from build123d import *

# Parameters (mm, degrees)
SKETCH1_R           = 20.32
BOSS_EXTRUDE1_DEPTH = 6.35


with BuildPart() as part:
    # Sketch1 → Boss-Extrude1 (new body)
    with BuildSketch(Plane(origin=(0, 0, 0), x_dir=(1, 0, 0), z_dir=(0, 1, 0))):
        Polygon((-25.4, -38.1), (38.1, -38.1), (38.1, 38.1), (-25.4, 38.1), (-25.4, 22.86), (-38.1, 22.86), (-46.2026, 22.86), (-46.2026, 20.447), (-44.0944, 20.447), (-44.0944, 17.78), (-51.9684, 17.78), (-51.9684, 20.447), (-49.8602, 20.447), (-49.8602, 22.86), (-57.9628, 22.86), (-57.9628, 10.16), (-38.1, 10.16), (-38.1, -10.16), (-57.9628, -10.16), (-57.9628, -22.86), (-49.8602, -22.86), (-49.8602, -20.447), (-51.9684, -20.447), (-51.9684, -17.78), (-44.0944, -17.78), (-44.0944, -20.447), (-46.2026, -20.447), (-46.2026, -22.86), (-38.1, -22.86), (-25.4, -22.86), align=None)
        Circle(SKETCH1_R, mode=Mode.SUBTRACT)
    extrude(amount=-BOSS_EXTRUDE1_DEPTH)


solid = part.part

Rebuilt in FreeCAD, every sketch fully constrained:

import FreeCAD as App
import Part
import Sketcher

V = App.Vector
Q = App.Units.Quantity

doc = App.newDocument("Part")
body = doc.addObject("PartDesign::Body", "Body")

sketch1 = body.newObject("Sketcher::SketchObject", "Sketch")
sketch1.AttachmentSupport = (doc.getObject("XZ_Plane"), [""])
sketch1.MapMode = "FlatFace"
sketch1.addGeometry([
    Part.LineSegment(V(-25.4, 38.1, 0), V(38.1, 38.1, 0)),
    Part.LineSegment(V(38.1, 38.1, 0), V(38.1, -38.1, 0)),
    Part.LineSegment(V(38.1, -38.1, 0), V(-25.4, -38.1, 0)),
    Part.LineSegment(V(-25.4, -38.1, 0), V(-25.4, -22.9, 0)),
    Part.LineSegment(V(-25.4, -22.9, 0), V(-46.2, -22.9, 0)),
    Part.LineSegment(V(-46.2, -22.9, 0), V(-46.2, -20.4, 0)),
    Part.LineSegment(V(-46.2, -20.4, 0), V(-44.1, -20.4, 0)),
    Part.LineSegment(V(-44.1, -20.4, 0), V(-44.1, -17.8, 0)),
    Part.LineSegment(V(-44.1, -17.8, 0), V(-52, -17.8, 0)),
    Part.LineSegment(V(-52, -17.8, 0), V(-52, -20.4, 0)),
    Part.LineSegment(V(-52, -20.4, 0), V(-49.9, -20.4, 0)),
    Part.LineSegment(V(-49.9, -20.4, 0), V(-49.9, -22.9, 0)),
    Part.LineSegment(V(-49.9, -22.9, 0), V(-58, -22.9, 0)),
    Part.LineSegment(V(-58, -22.9, 0), V(-58, -10.2, 0)),
    Part.LineSegment(V(-58, -10.2, 0), V(-38.1, -10.2, 0)),
    Part.LineSegment(V(-38.1, -10.2, 0), V(-38.1, 10.2, 0)),
    Part.LineSegment(V(-38.1, 10.2, 0), V(-58, 10.2, 0)),
    Part.LineSegment(V(-58, 10.2, 0), V(-58, 22.9, 0)),
    Part.LineSegment(V(-58, 22.9, 0), V(-49.9, 22.9, 0)),
    Part.LineSegment(V(-49.9, 22.9, 0), V(-49.9, 20.4, 0)),
    Part.LineSegment(V(-49.9, 20.4, 0), V(-52, 20.4, 0)),
    Part.LineSegment(V(-52, 20.4, 0), V(-52, 17.8, 0)),
    Part.LineSegment(V(-52, 17.8, 0), V(-44.1, 17.8, 0)),
    Part.LineSegment(V(-44.1, 17.8, 0), V(-44.1, 20.4, 0)),
    Part.LineSegment(V(-44.1, 20.4, 0), V(-46.2, 20.4, 0)),
    Part.LineSegment(V(-46.2, 20.4, 0), V(-46.2, 22.9, 0)),
    Part.LineSegment(V(-46.2, 22.9, 0), V(-25.4, 22.9, 0)),
    Part.LineSegment(V(-25.4, 22.9, 0), V(-25.4, 38.1, 0)),
    Part.Circle(V(0, 0, 0), V(0, 0, 1), 20.3),
], False)
sketch1.addConstraint([
    Sketcher.Constraint("Coincident", 0, 2, 1, 1),
    Sketcher.Constraint("Coincident", 1, 2, 2, 1),
    Sketcher.Constraint("Coincident", 2, 2, 3, 1),
    Sketcher.Constraint("Coincident", 3, 2, 4, 1),
    Sketcher.Constraint("Coincident", 4, 2, 5, 1),
    Sketcher.Constraint("Coincident", 5, 2, 6, 1),
    Sketcher.Constraint("Coincident", 6, 2, 7, 1),
    Sketcher.Constraint("Coincident", 7, 2, 8, 1),
    Sketcher.Constraint("Coincident", 8, 2, 9, 1),
    Sketcher.Constraint("Coincident", 9, 2, 10, 1),
    Sketcher.Constraint("Coincident", 10, 2, 11, 1),
    Sketcher.Constraint("Coincident", 11, 2, 12, 1),
    Sketcher.Constraint("Coincident", 12, 2, 13, 1),
    Sketcher.Constraint("Coincident", 13, 2, 14, 1),
    Sketcher.Constraint("Coincident", 14, 2, 15, 1),
    Sketcher.Constraint("Coincident", 15, 2, 16, 1),
    Sketcher.Constraint("Coincident", 16, 2, 17, 1),
    Sketcher.Constraint("Coincident", 17, 2, 18, 1),
    Sketcher.Constraint("Coincident", 18, 2, 19, 1),
    Sketcher.Constraint("Coincident", 19, 2, 20, 1),
    Sketcher.Constraint("Coincident", 20, 2, 21, 1),
    Sketcher.Constraint("Coincident", 21, 2, 22, 1),
    Sketcher.Constraint("Coincident", 22, 2, 23, 1),
    Sketcher.Constraint("Coincident", 23, 2, 24, 1),
    Sketcher.Constraint("Coincident", 24, 2, 25, 1),
    Sketcher.Constraint("Coincident", 25, 2, 26, 1),
    Sketcher.Constraint("Coincident", 26, 2, 27, 1),
    Sketcher.Constraint("Coincident", 27, 2, 0, 1),
    Sketcher.Constraint("Horizontal", 0),
    Sketcher.Constraint("Vertical", 1),
    Sketcher.Constraint("Horizontal", 2),
    Sketcher.Constraint("Vertical", 3),
    Sketcher.Constraint("Horizontal", 4),
    Sketcher.Constraint("Vertical", 5),
    Sketcher.Constraint("Horizontal", 6),
    Sketcher.Constraint("Vertical", 7),
    Sketcher.Constraint("Horizontal", 8),
    Sketcher.Constraint("Vertical", 9),
    Sketcher.Constraint("Horizontal", 10),
    Sketcher.Constraint("Vertical", 11),
    Sketcher.Constraint("Horizontal", 12),
    Sketcher.Constraint("Vertical", 13),
    Sketcher.Constraint("Horizontal", 14),
    Sketcher.Constraint("Vertical", 15),
    Sketcher.Constraint("Horizontal", 16),
    Sketcher.Constraint("Vertical", 17),
    Sketcher.Constraint("Horizontal", 18),
    Sketcher.Constraint("Vertical", 19),
    Sketcher.Constraint("Horizontal", 20),
    Sketcher.Constraint("Vertical", 21),
    Sketcher.Constraint("Horizontal", 22),
    Sketcher.Constraint("Vertical", 23),
    Sketcher.Constraint("Horizontal", 24),
    Sketcher.Constraint("Vertical", 25),
    Sketcher.Constraint("Horizontal", 26),
    Sketcher.Constraint("Vertical", 27),
    Sketcher.Constraint("Coincident", 28, 3, -1, 1),
    Sketcher.Constraint("Symmetric", 13, 2, 16, 2, -1),
    Sketcher.Constraint("Symmetric", 11, 2, 18, 2, -1),
    Sketcher.Constraint("Symmetric", 9, 2, 20, 2, -1),
    Sketcher.Constraint("Symmetric", 7, 2, 22, 2, -1),
    Sketcher.Constraint("Symmetric", 5, 2, 24, 2, -1),
    Sketcher.Constraint("Symmetric", 3, 2, 26, 2, -1),
    Sketcher.Constraint("Horizontal", 6, 2, 9, 2),
    Sketcher.Constraint("Horizontal", 4, 2, 11, 2),
    Sketcher.Constraint("Equal", 6, 10),
    Sketcher.Constraint("Equal", 3, 27),
    Sketcher.Constraint("Diameter", 28, Q("1.6 in")),
    Sketcher.Constraint("DistanceY", 1, 2, 1, 1, Q("3 in")),
    Sketcher.Constraint("DistanceX", 0, 1, 0, 2, Q("2.5 in")),
    Sketcher.Constraint("DistanceY", 3, 1, 3, 2, Q("0.6 in")),
    Sketcher.Constraint("DistanceY", 13, 1, 13, 2, Q("0.5 in")),
    Sketcher.Constraint("DistanceX", 2, 2, -1, 1, Q("1 in")),
    Sketcher.Constraint("DistanceX", 8, 2, 8, 1, Q("0.31 in")),
    Sketcher.Constraint("DistanceY", 7, 2, -1, 1, Q("0.7 in")),
    Sketcher.Constraint("DistanceX", 14, 2, -1, 1, Q("1.5 in")),
    Sketcher.Constraint("DistanceX", 4, 2, 4, 1, Q("0.819 in")),
    Sketcher.Constraint("DistanceX", 6, 1, 6, 2, Q("0.083 in")),
    Sketcher.Constraint("DistanceX", 12, 2, 12, 1, Q("0.319 in")),
    Sketcher.Constraint("DistanceY", 5, 1, 5, 2, Q("0.095 in")),
])
pad1 = body.newObject("PartDesign::Pad", "Pad")
pad1.Profile = sketch1
pad1.Length = Q("0.25 in")

doc.recompute()
